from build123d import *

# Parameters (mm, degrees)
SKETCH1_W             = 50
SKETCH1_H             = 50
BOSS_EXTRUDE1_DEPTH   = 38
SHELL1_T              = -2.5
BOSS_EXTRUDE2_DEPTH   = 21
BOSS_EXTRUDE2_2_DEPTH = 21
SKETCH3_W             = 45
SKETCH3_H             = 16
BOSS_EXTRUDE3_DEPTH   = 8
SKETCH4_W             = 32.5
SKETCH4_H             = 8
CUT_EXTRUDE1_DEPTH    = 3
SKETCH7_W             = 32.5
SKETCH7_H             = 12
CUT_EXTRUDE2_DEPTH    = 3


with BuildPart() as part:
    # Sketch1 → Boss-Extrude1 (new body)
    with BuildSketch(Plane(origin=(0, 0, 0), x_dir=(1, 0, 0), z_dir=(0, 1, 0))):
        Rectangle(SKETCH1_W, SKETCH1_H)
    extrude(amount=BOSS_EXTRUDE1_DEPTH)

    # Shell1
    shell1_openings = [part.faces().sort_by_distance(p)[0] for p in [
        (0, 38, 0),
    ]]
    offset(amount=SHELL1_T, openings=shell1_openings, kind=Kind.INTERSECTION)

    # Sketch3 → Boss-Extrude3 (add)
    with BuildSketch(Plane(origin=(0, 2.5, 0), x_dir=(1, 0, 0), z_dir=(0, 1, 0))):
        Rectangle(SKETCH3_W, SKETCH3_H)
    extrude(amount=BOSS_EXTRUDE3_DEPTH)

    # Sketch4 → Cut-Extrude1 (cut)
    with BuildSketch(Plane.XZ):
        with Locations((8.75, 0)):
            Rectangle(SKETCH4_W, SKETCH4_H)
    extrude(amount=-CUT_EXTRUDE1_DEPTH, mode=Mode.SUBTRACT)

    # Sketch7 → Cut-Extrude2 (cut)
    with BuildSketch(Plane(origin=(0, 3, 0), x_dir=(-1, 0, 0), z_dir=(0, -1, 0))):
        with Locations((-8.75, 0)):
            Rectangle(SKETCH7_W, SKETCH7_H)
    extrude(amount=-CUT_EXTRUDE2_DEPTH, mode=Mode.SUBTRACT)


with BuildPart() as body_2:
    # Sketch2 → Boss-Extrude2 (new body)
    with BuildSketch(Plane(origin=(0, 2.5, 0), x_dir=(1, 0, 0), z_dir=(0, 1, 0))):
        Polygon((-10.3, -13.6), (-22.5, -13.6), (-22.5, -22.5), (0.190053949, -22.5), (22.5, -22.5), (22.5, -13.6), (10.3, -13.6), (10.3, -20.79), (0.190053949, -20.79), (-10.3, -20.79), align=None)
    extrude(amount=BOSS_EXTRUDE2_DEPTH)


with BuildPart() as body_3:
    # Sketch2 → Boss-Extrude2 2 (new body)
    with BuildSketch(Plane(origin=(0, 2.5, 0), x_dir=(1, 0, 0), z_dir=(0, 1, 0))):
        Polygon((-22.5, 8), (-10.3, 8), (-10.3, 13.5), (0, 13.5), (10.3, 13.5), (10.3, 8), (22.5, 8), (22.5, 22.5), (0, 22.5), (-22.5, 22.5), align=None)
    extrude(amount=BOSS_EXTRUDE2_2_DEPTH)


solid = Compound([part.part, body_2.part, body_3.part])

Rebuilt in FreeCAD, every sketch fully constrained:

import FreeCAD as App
import Part
import Sketcher
Q = App.Units.Quantity


def faces_at(feature, points):
    """Names of the faces that lie closest to the given points."""
    faces = feature.Shape.Faces
    near = lambda p: min(range(len(faces)), key=lambda i: faces[i].distToShape(Part.Vertex(*p))[0])
    return sorted({f"Face{near(p) + 1}" for p in points})

doc = App.newDocument("Part")
params = doc.addObject("Spreadsheet::Sheet", "Params")
for row, (alias, value) in enumerate([
    ("sketch1_width", "50 mm"),
    ("pad1_length", "38 mm"),
    ("thickness_wall", "2.5 mm"),
    ("sketch2_width", "45 mm"),
    ("sketch2_height", "16 mm"),
    ("pad2_length", "8 mm"),
    ("sketch3_height", "8 mm"),
    ("sketch3_width", "32.5 mm"),
    ("pocket1_length", "3 mm"),
    ("sketch4_height", "12 mm"),
    ("sketch4_width", "32.5 mm"),
    ("pocket2_length", "3 mm"),
    ("sketch5_width", "45 mm"),
    ("sketch5_width2", "12.2 mm"),
    ("sketch5_height", "8.9 mm"),
    ("sketch5_height2", "7.19 mm"),
    ("pad3_length", "21 mm"),
    ("sketch6_width", "45 mm"),
    ("sketch6_width2", "12.2 mm"),
    ("sketch6_height", "5.5 mm"),
    ("sketch6_height2", "14.5 mm"),
    ("pad4_length", "21 mm"),
], start=1):
    params.set(f"A{row}", alias)
    params.set(f"B{row}", "=" + value)
    params.setAlias(f"B{row}", alias)

body = doc.addObject("PartDesign::Body", "Body")

# Sketch on XZ plane
sketch1 = doc.addObject("Sketcher::SketchObject", "Sketch")
body.addObject(sketch1)
sketch1.AttachmentSupport = (doc.XZ_Plane, [""])
sketch1.MapMode = "FlatFace"
sketch1.addGeometry(Part.LineSegment(App.Vector(-25, -25, 0), App.Vector(-25, 25, 0)), False)
sketch1.addGeometry(Part.LineSegment(App.Vector(-25, 25, 0), App.Vector(25, 25, 0)), False)
sketch1.addGeometry(Part.LineSegment(App.Vector(25, 25, 0), App.Vector(25, -25, 0)), False)
sketch1.addGeometry(Part.LineSegment(App.Vector(25, -25, 0), App.Vector(-25, -25, 0)), False)
sketch1.addConstraint(Sketcher.Constraint("Coincident", 0, 2, 1, 1))
sketch1.addConstraint(Sketcher.Constraint("Coincident", 1, 2, 2, 1))
sketch1.addConstraint(Sketcher.Constraint("Coincident", 2, 2, 3, 1))
sketch1.addConstraint(Sketcher.Constraint("Coincident", 3, 2, 0, 1))
sketch1.addConstraint(Sketcher.Constraint("Vertical", 0))
sketch1.addConstraint(Sketcher.Constraint("Horizontal", 1))
sketch1.addConstraint(Sketcher.Constraint("Vertical", 2))
sketch1.addConstraint(Sketcher.Constraint("Horizontal", 3))
sketch1.addConstraint(Sketcher.Constraint("Symmetric", 0, 2, 2, 2, -1, 1))
sketch1.addConstraint(Sketcher.Constraint("Equal", 3, 0))
sketch1.addConstraint(Sketcher.Constraint("DistanceX", 1, 1, 1, 2, Q("50 mm")))
sketch1.setExpression("Constraints[10]", "Params.sketch1_width")
pad1 = doc.addObject("PartDesign::Pad", "Pad")
body.addObject(pad1)
pad1.Profile = sketch1
pad1.setExpression("Length", "Params.pad1_length")
pad1.Reversed = True
doc.recompute()

thickness = doc.addObject("PartDesign::Thickness", "Thickness")
body.addObject(thickness)
thickness.Base = (pad1, faces_at(pad1, [(0, 38, 0)]))
thickness.setExpression("Value", "Params.thickness_wall")
thickness.Reversed = True
thickness.Join = "Intersection"

# Sketch on XZ plane
sketch2 = doc.addObject("Sketcher::SketchObject", "Sketch001")
body.addObject(sketch2)
sketch2.AttachmentSupport = (doc.XZ_Plane, [""])
sketch2.MapMode = "FlatFace"
sketch2.AttachmentOffset = App.Placement(App.Vector(0, 0, -2.5), App.Rotation())
sketch2.addGeometry(Part.LineSegment(App.Vector(-22, -8, 0), App.Vector(-22, 8, 0)), False)
sketch2.addGeometry(Part.LineSegment(App.Vector(-22, 8, 0), App.Vector(22, 8, 0)), False)
sketch2.addGeometry(Part.LineSegment(App.Vector(22, 8, 0), App.Vector(22, -8, 0)), False)
sketch2.addGeometry(Part.LineSegment(App.Vector(22, -8, 0), App.Vector(-22, -8, 0)), False)
sketch2.addConstraint(Sketcher.Constraint("Coincident", 0, 2, 1, 1))
sketch2.addConstraint(Sketcher.Constraint("Coincident", 1, 2, 2, 1))
sketch2.addConstraint(Sketcher.Constraint("Coincident", 2, 2, 3, 1))
sketch2.addConstraint(Sketcher.Constraint("Coincident", 3, 2, 0, 1))
sketch2.addConstraint(Sketcher.Constraint("Vertical", 0))
sketch2.addConstraint(Sketcher.Constraint("Horizontal", 1))
sketch2.addConstraint(Sketcher.Constraint("Vertical", 2))
sketch2.addConstraint(Sketcher.Constraint("Horizontal", 3))
sketch2.addConstraint(Sketcher.Constraint("Symmetric", 0, 2, 2, 2, -1, 1))
sketch2.addConstraint(Sketcher.Constraint("DistanceX", 1, 1, 1, 2, Q("45 mm")))
sketch2.addConstraint(Sketcher.Constraint("DistanceY", 0, 1, 0, 2, Q("16 mm")))
sketch2.setExpression("Constraints[9]", "Params.sketch2_width")
sketch2.setExpression("Constraints[10]", "Params.sketch2_height")
pad2 = doc.addObject("PartDesign::Pad", "Pad001")
body.addObject(pad2)
pad2.Profile = sketch2
pad2.setExpression("Length", "Params.pad2_length")
pad2.Reversed = True

# Sketch on XZ plane
sketch3 = doc.addObject("Sketcher::SketchObject", "Sketch002")
body.addObject(sketch3)
sketch3.AttachmentSupport = (doc.XZ_Plane, [""])
sketch3.MapMode = "FlatFace"
sketch3.addGeometry(Part.LineSegment(App.Vector(-8, 4, 0), App.Vector(-8, -4, 0)), False)
sketch3.addGeometry(Part.LineSegment(App.Vector(-8, -4, 0), App.Vector(25, -4, 0)), False)
sketch3.addGeometry(Part.LineSegment(App.Vector(25, -4, 0), App.Vector(25, 4, 0)), False)
sketch3.addGeometry(Part.LineSegment(App.Vector(25, 4, 0), App.Vector(-8, 4, 0)), False)
sketch3.addConstraint(Sketcher.Constraint("Coincident", 0, 2, 1, 1))
sketch3.addConstraint(Sketcher.Constraint("Coincident", 1, 2, 2, 1))
sketch3.addConstraint(Sketcher.Constraint("Coincident", 2, 2, 3, 1))
sketch3.addConstraint(Sketcher.Constraint("Coincident", 3, 2, 0, 1))
sketch3.addConstraint(Sketcher.Constraint("Vertical", 0))
sketch3.addConstraint(Sketcher.Constraint("Horizontal", 1))
sketch3.addConstraint(Sketcher.Constraint("Vertical", 2))
sketch3.addConstraint(Sketcher.Constraint("Horizontal", 3))
sketch3.addConstraint(Sketcher.Constraint("DistanceY", 0, 2, 0, 1, Q("8 mm")))
sketch3.addConstraint(Sketcher.Constraint("DistanceX", 1, 1, 1, 2, Q("32.5 mm")))
sketch3.addConstraint(Sketcher.Constraint("DistanceY", 0, 2, -1, 1, Q("4 mm")))
sketch3.addConstraint(Sketcher.Constraint("DistanceX", -1, 1, 1, 2, Q("25 mm")))
sketch3.setExpression("Constraints[8]", "Params.sketch3_height")
sketch3.setExpression("Constraints[9]", "Params.sketch3_width")
pocket1 = doc.addObject("PartDesign::Pocket", "Pocket")
body.addObject(pocket1)
pocket1.Profile = sketch3
pocket1.setExpression("Length", "Params.pocket1_length")

# Sketch on XZ plane
sketch4 = doc.addObject("Sketcher::SketchObject", "Sketch003")
body.addObject(sketch4)
sketch4.AttachmentSupport = (doc.XZ_Plane, [""])
sketch4.MapMode = "FlatFace"
sketch4.AttachmentOffset = App.Placement(App.Vector(0, 0, -3), App.Rotation())
sketch4.addGeometry(Part.LineSegment(App.Vector(25, -6, 0), App.Vector(25, 6, 0)), False)
sketch4.addGeometry(Part.LineSegment(App.Vector(25, 6, 0), App.Vector(-8, 6, 0)), False)
sketch4.addGeometry(Part.LineSegment(App.Vector(-8, 6, 0), App.Vector(-8, -6, 0)), False)
sketch4.addGeometry(Part.LineSegment(App.Vector(-8, -6, 0), App.Vector(25, -6, 0)), False)
sketch4.addConstraint(Sketcher.Constraint("Coincident", 0, 2, 1, 1))
sketch4.addConstraint(Sketcher.Constraint("Coincident", 1, 2, 2, 1))
sketch4.addConstraint(Sketcher.Constraint("Coincident", 2, 2, 3, 1))
sketch4.addConstraint(Sketcher.Constraint("Coincident", 3, 2, 0, 1))
sketch4.addConstraint(Sketcher.Constraint("Vertical", 0))
sketch4.addConstraint(Sketcher.Constraint("Horizontal", 1))
sketch4.addConstraint(Sketcher.Constraint("Vertical", 2))
sketch4.addConstraint(Sketcher.Constraint("Horizontal", 3))
sketch4.addConstraint(Sketcher.Constraint("DistanceY", 0, 1, 0, 2, Q("12 mm")))
sketch4.addConstraint(Sketcher.Constraint("DistanceX", 1, 2, 1, 1, Q("32.5 mm")))
sketch4.addConstraint(Sketcher.Constraint("DistanceX", -1, 1, 0, 2, Q("25 mm")))
sketch4.addConstraint(Sketcher.Constraint("DistanceY", -1, 1, 0, 2, Q("6 mm")))
sketch4.setExpression("Constraints[8]", "Params.sketch4_height")
sketch4.setExpression("Constraints[9]", "Params.sketch4_width")
pocket2 = doc.addObject("PartDesign::Pocket", "Pocket001")
body.addObject(pocket2)
pocket2.Profile = sketch4
pocket2.setExpression("Length", "Params.pocket2_length")
body2 = doc.addObject("PartDesign::Body", "Body001")

# Sketch on XZ plane
sketch5 = doc.addObject("Sketcher::SketchObject", "Sketch004")
body2.addObject(sketch5)
sketch5.AttachmentSupport = (doc.getObject("XZ_Plane001"), [""])
sketch5.MapMode = "FlatFace"
sketch5.AttachmentOffset = App.Placement(App.Vector(0, 0, -2.5), App.Rotation())
sketch5.addGeometry(Part.LineSegment(App.Vector(-10, 14, 0), App.Vector(-22, 14, 0)), False)
sketch5.addGeometry(Part.LineSegment(App.Vector(-22, 14, 0), App.Vector(-22, 22, 0)), False)
sketch5.addGeometry(Part.LineSegment(App.Vector(-22, 22, 0), App.Vector(22, 22, 0)), False)
sketch5.addGeometry(Part.LineSegment(App.Vector(22, 22, 0), App.Vector(22, 14, 0)), False)
sketch5.addGeometry(Part.LineSegment(App.Vector(22, 14, 0), App.Vector(10, 14, 0)), False)
sketch5.addGeometry(Part.LineSegment(App.Vector(10, 14, 0), App.Vector(10, 21, 0)), False)
sketch5.addGeometry(Part.LineSegment(App.Vector(10, 21, 0), App.Vector(-10, 21, 0)), False)
sketch5.addGeometry(Part.LineSegment(App.Vector(-10, 21, 0), App.Vector(-10, 14, 0)), False)
sketch5.addConstraint(Sketcher.Constraint("Coincident", 0, 2, 1, 1))
sketch5.addConstraint(Sketcher.Constraint("Coincident", 1, 2, 2, 1))
sketch5.addConstraint(Sketcher.Constraint("Coincident", 2, 2, 3, 1))
sketch5.addConstraint(Sketcher.Constraint("Coincident", 3, 2, 4, 1))
sketch5.addConstraint(Sketcher.Constraint("Coincident", 4, 2, 5, 1))
sketch5.addConstraint(Sketcher.Constraint("Coincident", 5, 2, 6, 1))
sketch5.addConstraint(Sketcher.Constraint("Coincident", 6, 2, 7, 1))
sketch5.addConstraint(Sketcher.Constraint("Coincident", 7, 2, 0, 1))
sketch5.addConstraint(Sketcher.Constraint("Horizontal", 0))
sketch5.addConstraint(Sketcher.Constraint("Vertical", 1))
sketch5.addConstraint(Sketcher.Constraint("Horizontal", 2))
sketch5.addConstraint(Sketcher.Constraint("Vertical", 3))
sketch5.addConstraint(Sketcher.Constraint("Horizontal", 4))
sketch5.addConstraint(Sketcher.Constraint("Vertical", 5))
sketch5.addConstraint(Sketcher.Constraint("Horizontal", 6))
sketch5.addConstraint(Sketcher.Constraint("Vertical", 7))
sketch5.addConstraint(Sketcher.Constraint("Symmetric", 0, 2, 3, 2, -2))
sketch5.addConstraint(Sketcher.Constraint("Equal", 0, 4))
sketch5.addConstraint(Sketcher.Constraint("DistanceX", 2, 1, 2, 2, Q("45 mm")))
sketch5.addConstraint(Sketcher.Constraint("DistanceX", 0, 2, 0, 1, Q("12.2 mm")))
sketch5.addConstraint(Sketcher.Constraint("DistanceY", 1, 1, 1, 2, Q("8.9 mm")))
sketch5.addConstraint(Sketcher.Constraint("DistanceY", 5, 1, 5, 2, Q("7.19 mm")))
sketch5.addConstraint(Sketcher.Constraint("DistanceY", -1, 1, 0, 2, Q("13.6 mm")))
sketch5.setExpression("Constraints[18]", "Params.sketch5_width")
sketch5.setExpression("Constraints[19]", "Params.sketch5_width2")
sketch5.setExpression("Constraints[20]", "Params.sketch5_height")
sketch5.setExpression("Constraints[21]", "Params.sketch5_height2")
pad3 = doc.addObject("PartDesign::Pad", "Pad002")
body2.addObject(pad3)
pad3.Profile = sketch5
pad3.setExpression("Length", "Params.pad3_length")
pad3.Reversed = True
body3 = doc.addObject("PartDesign::Body", "Body002")

# Sketch on XZ plane
sketch6 = doc.addObject("Sketcher::SketchObject", "Sketch005")
body3.addObject(sketch6)
sketch6.AttachmentSupport = (doc.getObject("XZ_Plane002"), [""])
sketch6.MapMode = "FlatFace"
sketch6.AttachmentOffset = App.Placement(App.Vector(0, 0, -2.5), App.Rotation())
sketch6.addGeometry(Part.LineSegment(App.Vector(-22, -8, 0), App.Vector(-10, -8, 0)), False)
sketch6.addGeometry(Part.LineSegment(App.Vector(-10, -8, 0), App.Vector(-10, -14, 0)), False)
sketch6.addGeometry(Part.LineSegment(App.Vector(-10, -14, 0), App.Vector(10, -14, 0)), False)
sketch6.addGeometry(Part.LineSegment(App.Vector(10, -14, 0), App.Vector(10, -8, 0)), False)
sketch6.addGeometry(Part.LineSegment(App.Vector(10, -8, 0), App.Vector(22, -8, 0)), False)
sketch6.addGeometry(Part.LineSegment(App.Vector(22, -8, 0), App.Vector(22, -22, 0)), False)
sketch6.addGeometry(Part.LineSegment(App.Vector(22, -22, 0), App.Vector(-22, -22, 0)), False)
sketch6.addGeometry(Part.LineSegment(App.Vector(-22, -22, 0), App.Vector(-22, -8, 0)), False)
sketch6.addConstraint(Sketcher.Constraint("Coincident", 0, 2, 1, 1))
sketch6.addConstraint(Sketcher.Constraint("Coincident", 1, 2, 2, 1))
sketch6.addConstraint(Sketcher.Constraint("Coincident", 2, 2, 3, 1))
sketch6.addConstraint(Sketcher.Constraint("Coincident", 3, 2, 4, 1))
sketch6.addConstraint(Sketcher.Constraint("Coincident", 4, 2, 5, 1))
sketch6.addConstraint(Sketcher.Constraint("Coincident", 5, 2, 6, 1))
sketch6.addConstraint(Sketcher.Constraint("Coincident", 6, 2, 7, 1))
sketch6.addConstraint(Sketcher.Constraint("Coincident", 7, 2, 0, 1))
sketch6.addConstraint(Sketcher.Constraint("Horizontal", 0))
sketch6.addConstraint(Sketcher.Constraint("Vertical", 1))
sketch6.addConstraint(Sketcher.Constraint("Horizontal", 2))
sketch6.addConstraint(Sketcher.Constraint("Vertical", 3))
sketch6.addConstraint(Sketcher.Constraint("Horizontal", 4))
sketch6.addConstraint(Sketcher.Constraint("Vertical", 5))
sketch6.addConstraint(Sketcher.Constraint("Horizontal", 6))
sketch6.addConstraint(Sketcher.Constraint("Vertical", 7))
sketch6.addConstraint(Sketcher.Constraint("Symmetric", 0, 2, 3, 2, -2))
sketch6.addConstraint(Sketcher.Constraint("Equal", 0, 4))
sketch6.addConstraint(Sketcher.Constraint("DistanceX", 6, 2, 6, 1, Q("45 mm")))
sketch6.addConstraint(Sketcher.Constraint("DistanceX", 0, 1, 0, 2, Q("12.2 mm")))
sketch6.addConstraint(Sketcher.Constraint("DistanceY", 1, 2, 1, 1, Q("5.5 mm")))
sketch6.addConstraint(Sketcher.Constraint("DistanceY", 5, 2, 5, 1, Q("14.5 mm")))
sketch6.addConstraint(Sketcher.Constraint("DistanceY", 0, 2, -1, 1, Q("8 mm")))
sketch6.setExpression("Constraints[18]", "Params.sketch6_width")
sketch6.setExpression("Constraints[19]", "Params.sketch6_width2")
sketch6.setExpression("Constraints[20]", "Params.sketch6_height")
sketch6.setExpression("Constraints[21]", "Params.sketch6_height2")
pad4 = doc.addObject("PartDesign::Pad", "Pad003")
body3.addObject(pad4)
pad4.Profile = sketch6
pad4.setExpression("Length", "Params.pad4_length")
pad4.Reversed = True

doc.recompute()
